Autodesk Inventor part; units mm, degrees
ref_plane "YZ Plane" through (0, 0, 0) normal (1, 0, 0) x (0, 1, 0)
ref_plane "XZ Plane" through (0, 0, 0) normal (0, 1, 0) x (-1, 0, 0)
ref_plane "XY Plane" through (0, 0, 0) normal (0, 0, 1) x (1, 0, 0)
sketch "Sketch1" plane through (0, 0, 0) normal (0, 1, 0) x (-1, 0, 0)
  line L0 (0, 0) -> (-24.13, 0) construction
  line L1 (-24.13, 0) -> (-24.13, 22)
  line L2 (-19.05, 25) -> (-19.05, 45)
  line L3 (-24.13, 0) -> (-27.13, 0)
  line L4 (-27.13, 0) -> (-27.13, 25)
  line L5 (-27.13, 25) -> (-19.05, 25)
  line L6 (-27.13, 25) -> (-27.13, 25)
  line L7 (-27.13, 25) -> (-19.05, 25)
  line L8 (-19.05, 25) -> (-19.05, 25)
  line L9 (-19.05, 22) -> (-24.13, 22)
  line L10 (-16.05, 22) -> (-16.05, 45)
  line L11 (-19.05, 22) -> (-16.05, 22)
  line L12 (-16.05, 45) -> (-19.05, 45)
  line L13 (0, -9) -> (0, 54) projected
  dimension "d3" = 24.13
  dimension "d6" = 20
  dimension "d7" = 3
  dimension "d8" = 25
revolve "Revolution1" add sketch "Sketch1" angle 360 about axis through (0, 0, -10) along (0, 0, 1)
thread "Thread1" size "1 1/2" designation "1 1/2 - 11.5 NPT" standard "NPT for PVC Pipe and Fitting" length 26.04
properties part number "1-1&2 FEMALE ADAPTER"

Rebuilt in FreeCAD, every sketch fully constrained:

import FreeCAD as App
import Part
import Sketcher

V = App.Vector

doc = App.newDocument("Part")
body = doc.addObject("PartDesign::Body", "Body")

sketch1 = body.newObject("Sketcher::SketchObject", "Sketch")
sketch1.AttachmentSupport = (doc.getObject("XZ_Plane"), [""])
sketch1.MapMode = "FlatFace"
sketch1.addGeometry([
    Part.LineSegment(V(27.1, 0, 0), V(24.1, 0, 0)),
    Part.LineSegment(V(24.1, 0, 0), V(24.1, 22, 0)),
    Part.LineSegment(V(24.1, 22, 0), V(16.1, 22, 0)),
    Part.LineSegment(V(16.1, 22, 0), V(16.1, 45, 0)),
    Part.LineSegment(V(16.1, 45, 0), V(19.1, 45, 0)),
    Part.LineSegment(V(19.1, 45, 0), V(19.1, 25, 0)),
    Part.LineSegment(V(19.1, 25, 0), V(27.1, 25, 0)),
    Part.LineSegment(V(27.1, 25, 0), V(27.1, 0, 0)),
], False)
sketch1.addConstraint([
    Sketcher.Constraint("Coincident", 0, 2, 1, 1),
    Sketcher.Constraint("Coincident", 1, 2, 2, 1),
    Sketcher.Constraint("Coincident", 2, 2, 3, 1),
    Sketcher.Constraint("Coincident", 3, 2, 4, 1),
    Sketcher.Constraint("Coincident", 4, 2, 5, 1),
    Sketcher.Constraint("Coincident", 5, 2, 6, 1),
    Sketcher.Constraint("Coincident", 6, 2, 7, 1),
    Sketcher.Constraint("Coincident", 7, 2, 0, 1),
    Sketcher.Constraint("Horizontal", 0),
    Sketcher.Constraint("Vertical", 1),
    Sketcher.Constraint("Horizontal", 2),
    Sketcher.Constraint("Vertical", 3),
    Sketcher.Constraint("Horizontal", 4),
    Sketcher.Constraint("Vertical", 5),
    Sketcher.Constraint("Horizontal", 6),
    Sketcher.Constraint("Vertical", 7),
    Sketcher.Constraint("PointOnObject", 0, 2, -1),
    Sketcher.Constraint("Equal", 0, 4),
    Sketcher.Constraint("DistanceX", 0, 2, 0, 1, 3.0),
    Sketcher.Constraint("DistanceY", 5, 2, 5, 1, 20.0),
    Sketcher.Constraint("DistanceY", 7, 2, 7, 1, 25.0),
    Sketcher.Constraint("DistanceY", 2, 2, 5, 2, 3.0),
    Sketcher.Constraint("DistanceX", -1, 1, 0, 2, 24.13),
    Sketcher.Constraint("DistanceX", 2, 2, 2, 1, 8.08),
])
revolution = body.newObject("PartDesign::Revolution", "Revolution")
revolution.Profile = sketch1
revolution.ReferenceAxis = (sketch1, ["V_Axis"])
revolution.Angle = 360

doc.recompute()
